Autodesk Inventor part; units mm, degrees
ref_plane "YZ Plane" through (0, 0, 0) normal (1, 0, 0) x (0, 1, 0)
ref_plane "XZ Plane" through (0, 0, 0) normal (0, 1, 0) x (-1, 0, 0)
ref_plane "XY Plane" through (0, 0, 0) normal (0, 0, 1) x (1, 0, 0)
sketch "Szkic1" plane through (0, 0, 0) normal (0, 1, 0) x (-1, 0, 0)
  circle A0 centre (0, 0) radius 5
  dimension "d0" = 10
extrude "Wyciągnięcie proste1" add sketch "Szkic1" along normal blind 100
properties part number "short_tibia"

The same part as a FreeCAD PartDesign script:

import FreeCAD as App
import Part
import Sketcher
Q = App.Units.Quantity

doc = App.newDocument("Part")
body = doc.addObject("PartDesign::Body", "Body")

# Sketch on XZ plane
sketch1 = doc.addObject("Sketcher::SketchObject", "Sketch")
body.addObject(sketch1)
sketch1.AttachmentSupport = (doc.XZ_Plane, [""])
sketch1.MapMode = "FlatFace"
sketch1.addGeometry(Part.Circle(App.Vector(0, 0, 0), App.Vector(0, 0, 1), 5), False)
sketch1.addConstraint(Sketcher.Constraint("Coincident", 0, 3, -1, 1))
sketch1.addConstraint(Sketcher.Constraint("Diameter", 0, Q("0.3937 in")))
pad1 = doc.addObject("PartDesign::Pad", "Pad")
body.addObject(pad1)
pad1.Profile = sketch1
pad1.Length = Q("3.9370079 in")
pad1.Reversed = True

doc.recompute()
